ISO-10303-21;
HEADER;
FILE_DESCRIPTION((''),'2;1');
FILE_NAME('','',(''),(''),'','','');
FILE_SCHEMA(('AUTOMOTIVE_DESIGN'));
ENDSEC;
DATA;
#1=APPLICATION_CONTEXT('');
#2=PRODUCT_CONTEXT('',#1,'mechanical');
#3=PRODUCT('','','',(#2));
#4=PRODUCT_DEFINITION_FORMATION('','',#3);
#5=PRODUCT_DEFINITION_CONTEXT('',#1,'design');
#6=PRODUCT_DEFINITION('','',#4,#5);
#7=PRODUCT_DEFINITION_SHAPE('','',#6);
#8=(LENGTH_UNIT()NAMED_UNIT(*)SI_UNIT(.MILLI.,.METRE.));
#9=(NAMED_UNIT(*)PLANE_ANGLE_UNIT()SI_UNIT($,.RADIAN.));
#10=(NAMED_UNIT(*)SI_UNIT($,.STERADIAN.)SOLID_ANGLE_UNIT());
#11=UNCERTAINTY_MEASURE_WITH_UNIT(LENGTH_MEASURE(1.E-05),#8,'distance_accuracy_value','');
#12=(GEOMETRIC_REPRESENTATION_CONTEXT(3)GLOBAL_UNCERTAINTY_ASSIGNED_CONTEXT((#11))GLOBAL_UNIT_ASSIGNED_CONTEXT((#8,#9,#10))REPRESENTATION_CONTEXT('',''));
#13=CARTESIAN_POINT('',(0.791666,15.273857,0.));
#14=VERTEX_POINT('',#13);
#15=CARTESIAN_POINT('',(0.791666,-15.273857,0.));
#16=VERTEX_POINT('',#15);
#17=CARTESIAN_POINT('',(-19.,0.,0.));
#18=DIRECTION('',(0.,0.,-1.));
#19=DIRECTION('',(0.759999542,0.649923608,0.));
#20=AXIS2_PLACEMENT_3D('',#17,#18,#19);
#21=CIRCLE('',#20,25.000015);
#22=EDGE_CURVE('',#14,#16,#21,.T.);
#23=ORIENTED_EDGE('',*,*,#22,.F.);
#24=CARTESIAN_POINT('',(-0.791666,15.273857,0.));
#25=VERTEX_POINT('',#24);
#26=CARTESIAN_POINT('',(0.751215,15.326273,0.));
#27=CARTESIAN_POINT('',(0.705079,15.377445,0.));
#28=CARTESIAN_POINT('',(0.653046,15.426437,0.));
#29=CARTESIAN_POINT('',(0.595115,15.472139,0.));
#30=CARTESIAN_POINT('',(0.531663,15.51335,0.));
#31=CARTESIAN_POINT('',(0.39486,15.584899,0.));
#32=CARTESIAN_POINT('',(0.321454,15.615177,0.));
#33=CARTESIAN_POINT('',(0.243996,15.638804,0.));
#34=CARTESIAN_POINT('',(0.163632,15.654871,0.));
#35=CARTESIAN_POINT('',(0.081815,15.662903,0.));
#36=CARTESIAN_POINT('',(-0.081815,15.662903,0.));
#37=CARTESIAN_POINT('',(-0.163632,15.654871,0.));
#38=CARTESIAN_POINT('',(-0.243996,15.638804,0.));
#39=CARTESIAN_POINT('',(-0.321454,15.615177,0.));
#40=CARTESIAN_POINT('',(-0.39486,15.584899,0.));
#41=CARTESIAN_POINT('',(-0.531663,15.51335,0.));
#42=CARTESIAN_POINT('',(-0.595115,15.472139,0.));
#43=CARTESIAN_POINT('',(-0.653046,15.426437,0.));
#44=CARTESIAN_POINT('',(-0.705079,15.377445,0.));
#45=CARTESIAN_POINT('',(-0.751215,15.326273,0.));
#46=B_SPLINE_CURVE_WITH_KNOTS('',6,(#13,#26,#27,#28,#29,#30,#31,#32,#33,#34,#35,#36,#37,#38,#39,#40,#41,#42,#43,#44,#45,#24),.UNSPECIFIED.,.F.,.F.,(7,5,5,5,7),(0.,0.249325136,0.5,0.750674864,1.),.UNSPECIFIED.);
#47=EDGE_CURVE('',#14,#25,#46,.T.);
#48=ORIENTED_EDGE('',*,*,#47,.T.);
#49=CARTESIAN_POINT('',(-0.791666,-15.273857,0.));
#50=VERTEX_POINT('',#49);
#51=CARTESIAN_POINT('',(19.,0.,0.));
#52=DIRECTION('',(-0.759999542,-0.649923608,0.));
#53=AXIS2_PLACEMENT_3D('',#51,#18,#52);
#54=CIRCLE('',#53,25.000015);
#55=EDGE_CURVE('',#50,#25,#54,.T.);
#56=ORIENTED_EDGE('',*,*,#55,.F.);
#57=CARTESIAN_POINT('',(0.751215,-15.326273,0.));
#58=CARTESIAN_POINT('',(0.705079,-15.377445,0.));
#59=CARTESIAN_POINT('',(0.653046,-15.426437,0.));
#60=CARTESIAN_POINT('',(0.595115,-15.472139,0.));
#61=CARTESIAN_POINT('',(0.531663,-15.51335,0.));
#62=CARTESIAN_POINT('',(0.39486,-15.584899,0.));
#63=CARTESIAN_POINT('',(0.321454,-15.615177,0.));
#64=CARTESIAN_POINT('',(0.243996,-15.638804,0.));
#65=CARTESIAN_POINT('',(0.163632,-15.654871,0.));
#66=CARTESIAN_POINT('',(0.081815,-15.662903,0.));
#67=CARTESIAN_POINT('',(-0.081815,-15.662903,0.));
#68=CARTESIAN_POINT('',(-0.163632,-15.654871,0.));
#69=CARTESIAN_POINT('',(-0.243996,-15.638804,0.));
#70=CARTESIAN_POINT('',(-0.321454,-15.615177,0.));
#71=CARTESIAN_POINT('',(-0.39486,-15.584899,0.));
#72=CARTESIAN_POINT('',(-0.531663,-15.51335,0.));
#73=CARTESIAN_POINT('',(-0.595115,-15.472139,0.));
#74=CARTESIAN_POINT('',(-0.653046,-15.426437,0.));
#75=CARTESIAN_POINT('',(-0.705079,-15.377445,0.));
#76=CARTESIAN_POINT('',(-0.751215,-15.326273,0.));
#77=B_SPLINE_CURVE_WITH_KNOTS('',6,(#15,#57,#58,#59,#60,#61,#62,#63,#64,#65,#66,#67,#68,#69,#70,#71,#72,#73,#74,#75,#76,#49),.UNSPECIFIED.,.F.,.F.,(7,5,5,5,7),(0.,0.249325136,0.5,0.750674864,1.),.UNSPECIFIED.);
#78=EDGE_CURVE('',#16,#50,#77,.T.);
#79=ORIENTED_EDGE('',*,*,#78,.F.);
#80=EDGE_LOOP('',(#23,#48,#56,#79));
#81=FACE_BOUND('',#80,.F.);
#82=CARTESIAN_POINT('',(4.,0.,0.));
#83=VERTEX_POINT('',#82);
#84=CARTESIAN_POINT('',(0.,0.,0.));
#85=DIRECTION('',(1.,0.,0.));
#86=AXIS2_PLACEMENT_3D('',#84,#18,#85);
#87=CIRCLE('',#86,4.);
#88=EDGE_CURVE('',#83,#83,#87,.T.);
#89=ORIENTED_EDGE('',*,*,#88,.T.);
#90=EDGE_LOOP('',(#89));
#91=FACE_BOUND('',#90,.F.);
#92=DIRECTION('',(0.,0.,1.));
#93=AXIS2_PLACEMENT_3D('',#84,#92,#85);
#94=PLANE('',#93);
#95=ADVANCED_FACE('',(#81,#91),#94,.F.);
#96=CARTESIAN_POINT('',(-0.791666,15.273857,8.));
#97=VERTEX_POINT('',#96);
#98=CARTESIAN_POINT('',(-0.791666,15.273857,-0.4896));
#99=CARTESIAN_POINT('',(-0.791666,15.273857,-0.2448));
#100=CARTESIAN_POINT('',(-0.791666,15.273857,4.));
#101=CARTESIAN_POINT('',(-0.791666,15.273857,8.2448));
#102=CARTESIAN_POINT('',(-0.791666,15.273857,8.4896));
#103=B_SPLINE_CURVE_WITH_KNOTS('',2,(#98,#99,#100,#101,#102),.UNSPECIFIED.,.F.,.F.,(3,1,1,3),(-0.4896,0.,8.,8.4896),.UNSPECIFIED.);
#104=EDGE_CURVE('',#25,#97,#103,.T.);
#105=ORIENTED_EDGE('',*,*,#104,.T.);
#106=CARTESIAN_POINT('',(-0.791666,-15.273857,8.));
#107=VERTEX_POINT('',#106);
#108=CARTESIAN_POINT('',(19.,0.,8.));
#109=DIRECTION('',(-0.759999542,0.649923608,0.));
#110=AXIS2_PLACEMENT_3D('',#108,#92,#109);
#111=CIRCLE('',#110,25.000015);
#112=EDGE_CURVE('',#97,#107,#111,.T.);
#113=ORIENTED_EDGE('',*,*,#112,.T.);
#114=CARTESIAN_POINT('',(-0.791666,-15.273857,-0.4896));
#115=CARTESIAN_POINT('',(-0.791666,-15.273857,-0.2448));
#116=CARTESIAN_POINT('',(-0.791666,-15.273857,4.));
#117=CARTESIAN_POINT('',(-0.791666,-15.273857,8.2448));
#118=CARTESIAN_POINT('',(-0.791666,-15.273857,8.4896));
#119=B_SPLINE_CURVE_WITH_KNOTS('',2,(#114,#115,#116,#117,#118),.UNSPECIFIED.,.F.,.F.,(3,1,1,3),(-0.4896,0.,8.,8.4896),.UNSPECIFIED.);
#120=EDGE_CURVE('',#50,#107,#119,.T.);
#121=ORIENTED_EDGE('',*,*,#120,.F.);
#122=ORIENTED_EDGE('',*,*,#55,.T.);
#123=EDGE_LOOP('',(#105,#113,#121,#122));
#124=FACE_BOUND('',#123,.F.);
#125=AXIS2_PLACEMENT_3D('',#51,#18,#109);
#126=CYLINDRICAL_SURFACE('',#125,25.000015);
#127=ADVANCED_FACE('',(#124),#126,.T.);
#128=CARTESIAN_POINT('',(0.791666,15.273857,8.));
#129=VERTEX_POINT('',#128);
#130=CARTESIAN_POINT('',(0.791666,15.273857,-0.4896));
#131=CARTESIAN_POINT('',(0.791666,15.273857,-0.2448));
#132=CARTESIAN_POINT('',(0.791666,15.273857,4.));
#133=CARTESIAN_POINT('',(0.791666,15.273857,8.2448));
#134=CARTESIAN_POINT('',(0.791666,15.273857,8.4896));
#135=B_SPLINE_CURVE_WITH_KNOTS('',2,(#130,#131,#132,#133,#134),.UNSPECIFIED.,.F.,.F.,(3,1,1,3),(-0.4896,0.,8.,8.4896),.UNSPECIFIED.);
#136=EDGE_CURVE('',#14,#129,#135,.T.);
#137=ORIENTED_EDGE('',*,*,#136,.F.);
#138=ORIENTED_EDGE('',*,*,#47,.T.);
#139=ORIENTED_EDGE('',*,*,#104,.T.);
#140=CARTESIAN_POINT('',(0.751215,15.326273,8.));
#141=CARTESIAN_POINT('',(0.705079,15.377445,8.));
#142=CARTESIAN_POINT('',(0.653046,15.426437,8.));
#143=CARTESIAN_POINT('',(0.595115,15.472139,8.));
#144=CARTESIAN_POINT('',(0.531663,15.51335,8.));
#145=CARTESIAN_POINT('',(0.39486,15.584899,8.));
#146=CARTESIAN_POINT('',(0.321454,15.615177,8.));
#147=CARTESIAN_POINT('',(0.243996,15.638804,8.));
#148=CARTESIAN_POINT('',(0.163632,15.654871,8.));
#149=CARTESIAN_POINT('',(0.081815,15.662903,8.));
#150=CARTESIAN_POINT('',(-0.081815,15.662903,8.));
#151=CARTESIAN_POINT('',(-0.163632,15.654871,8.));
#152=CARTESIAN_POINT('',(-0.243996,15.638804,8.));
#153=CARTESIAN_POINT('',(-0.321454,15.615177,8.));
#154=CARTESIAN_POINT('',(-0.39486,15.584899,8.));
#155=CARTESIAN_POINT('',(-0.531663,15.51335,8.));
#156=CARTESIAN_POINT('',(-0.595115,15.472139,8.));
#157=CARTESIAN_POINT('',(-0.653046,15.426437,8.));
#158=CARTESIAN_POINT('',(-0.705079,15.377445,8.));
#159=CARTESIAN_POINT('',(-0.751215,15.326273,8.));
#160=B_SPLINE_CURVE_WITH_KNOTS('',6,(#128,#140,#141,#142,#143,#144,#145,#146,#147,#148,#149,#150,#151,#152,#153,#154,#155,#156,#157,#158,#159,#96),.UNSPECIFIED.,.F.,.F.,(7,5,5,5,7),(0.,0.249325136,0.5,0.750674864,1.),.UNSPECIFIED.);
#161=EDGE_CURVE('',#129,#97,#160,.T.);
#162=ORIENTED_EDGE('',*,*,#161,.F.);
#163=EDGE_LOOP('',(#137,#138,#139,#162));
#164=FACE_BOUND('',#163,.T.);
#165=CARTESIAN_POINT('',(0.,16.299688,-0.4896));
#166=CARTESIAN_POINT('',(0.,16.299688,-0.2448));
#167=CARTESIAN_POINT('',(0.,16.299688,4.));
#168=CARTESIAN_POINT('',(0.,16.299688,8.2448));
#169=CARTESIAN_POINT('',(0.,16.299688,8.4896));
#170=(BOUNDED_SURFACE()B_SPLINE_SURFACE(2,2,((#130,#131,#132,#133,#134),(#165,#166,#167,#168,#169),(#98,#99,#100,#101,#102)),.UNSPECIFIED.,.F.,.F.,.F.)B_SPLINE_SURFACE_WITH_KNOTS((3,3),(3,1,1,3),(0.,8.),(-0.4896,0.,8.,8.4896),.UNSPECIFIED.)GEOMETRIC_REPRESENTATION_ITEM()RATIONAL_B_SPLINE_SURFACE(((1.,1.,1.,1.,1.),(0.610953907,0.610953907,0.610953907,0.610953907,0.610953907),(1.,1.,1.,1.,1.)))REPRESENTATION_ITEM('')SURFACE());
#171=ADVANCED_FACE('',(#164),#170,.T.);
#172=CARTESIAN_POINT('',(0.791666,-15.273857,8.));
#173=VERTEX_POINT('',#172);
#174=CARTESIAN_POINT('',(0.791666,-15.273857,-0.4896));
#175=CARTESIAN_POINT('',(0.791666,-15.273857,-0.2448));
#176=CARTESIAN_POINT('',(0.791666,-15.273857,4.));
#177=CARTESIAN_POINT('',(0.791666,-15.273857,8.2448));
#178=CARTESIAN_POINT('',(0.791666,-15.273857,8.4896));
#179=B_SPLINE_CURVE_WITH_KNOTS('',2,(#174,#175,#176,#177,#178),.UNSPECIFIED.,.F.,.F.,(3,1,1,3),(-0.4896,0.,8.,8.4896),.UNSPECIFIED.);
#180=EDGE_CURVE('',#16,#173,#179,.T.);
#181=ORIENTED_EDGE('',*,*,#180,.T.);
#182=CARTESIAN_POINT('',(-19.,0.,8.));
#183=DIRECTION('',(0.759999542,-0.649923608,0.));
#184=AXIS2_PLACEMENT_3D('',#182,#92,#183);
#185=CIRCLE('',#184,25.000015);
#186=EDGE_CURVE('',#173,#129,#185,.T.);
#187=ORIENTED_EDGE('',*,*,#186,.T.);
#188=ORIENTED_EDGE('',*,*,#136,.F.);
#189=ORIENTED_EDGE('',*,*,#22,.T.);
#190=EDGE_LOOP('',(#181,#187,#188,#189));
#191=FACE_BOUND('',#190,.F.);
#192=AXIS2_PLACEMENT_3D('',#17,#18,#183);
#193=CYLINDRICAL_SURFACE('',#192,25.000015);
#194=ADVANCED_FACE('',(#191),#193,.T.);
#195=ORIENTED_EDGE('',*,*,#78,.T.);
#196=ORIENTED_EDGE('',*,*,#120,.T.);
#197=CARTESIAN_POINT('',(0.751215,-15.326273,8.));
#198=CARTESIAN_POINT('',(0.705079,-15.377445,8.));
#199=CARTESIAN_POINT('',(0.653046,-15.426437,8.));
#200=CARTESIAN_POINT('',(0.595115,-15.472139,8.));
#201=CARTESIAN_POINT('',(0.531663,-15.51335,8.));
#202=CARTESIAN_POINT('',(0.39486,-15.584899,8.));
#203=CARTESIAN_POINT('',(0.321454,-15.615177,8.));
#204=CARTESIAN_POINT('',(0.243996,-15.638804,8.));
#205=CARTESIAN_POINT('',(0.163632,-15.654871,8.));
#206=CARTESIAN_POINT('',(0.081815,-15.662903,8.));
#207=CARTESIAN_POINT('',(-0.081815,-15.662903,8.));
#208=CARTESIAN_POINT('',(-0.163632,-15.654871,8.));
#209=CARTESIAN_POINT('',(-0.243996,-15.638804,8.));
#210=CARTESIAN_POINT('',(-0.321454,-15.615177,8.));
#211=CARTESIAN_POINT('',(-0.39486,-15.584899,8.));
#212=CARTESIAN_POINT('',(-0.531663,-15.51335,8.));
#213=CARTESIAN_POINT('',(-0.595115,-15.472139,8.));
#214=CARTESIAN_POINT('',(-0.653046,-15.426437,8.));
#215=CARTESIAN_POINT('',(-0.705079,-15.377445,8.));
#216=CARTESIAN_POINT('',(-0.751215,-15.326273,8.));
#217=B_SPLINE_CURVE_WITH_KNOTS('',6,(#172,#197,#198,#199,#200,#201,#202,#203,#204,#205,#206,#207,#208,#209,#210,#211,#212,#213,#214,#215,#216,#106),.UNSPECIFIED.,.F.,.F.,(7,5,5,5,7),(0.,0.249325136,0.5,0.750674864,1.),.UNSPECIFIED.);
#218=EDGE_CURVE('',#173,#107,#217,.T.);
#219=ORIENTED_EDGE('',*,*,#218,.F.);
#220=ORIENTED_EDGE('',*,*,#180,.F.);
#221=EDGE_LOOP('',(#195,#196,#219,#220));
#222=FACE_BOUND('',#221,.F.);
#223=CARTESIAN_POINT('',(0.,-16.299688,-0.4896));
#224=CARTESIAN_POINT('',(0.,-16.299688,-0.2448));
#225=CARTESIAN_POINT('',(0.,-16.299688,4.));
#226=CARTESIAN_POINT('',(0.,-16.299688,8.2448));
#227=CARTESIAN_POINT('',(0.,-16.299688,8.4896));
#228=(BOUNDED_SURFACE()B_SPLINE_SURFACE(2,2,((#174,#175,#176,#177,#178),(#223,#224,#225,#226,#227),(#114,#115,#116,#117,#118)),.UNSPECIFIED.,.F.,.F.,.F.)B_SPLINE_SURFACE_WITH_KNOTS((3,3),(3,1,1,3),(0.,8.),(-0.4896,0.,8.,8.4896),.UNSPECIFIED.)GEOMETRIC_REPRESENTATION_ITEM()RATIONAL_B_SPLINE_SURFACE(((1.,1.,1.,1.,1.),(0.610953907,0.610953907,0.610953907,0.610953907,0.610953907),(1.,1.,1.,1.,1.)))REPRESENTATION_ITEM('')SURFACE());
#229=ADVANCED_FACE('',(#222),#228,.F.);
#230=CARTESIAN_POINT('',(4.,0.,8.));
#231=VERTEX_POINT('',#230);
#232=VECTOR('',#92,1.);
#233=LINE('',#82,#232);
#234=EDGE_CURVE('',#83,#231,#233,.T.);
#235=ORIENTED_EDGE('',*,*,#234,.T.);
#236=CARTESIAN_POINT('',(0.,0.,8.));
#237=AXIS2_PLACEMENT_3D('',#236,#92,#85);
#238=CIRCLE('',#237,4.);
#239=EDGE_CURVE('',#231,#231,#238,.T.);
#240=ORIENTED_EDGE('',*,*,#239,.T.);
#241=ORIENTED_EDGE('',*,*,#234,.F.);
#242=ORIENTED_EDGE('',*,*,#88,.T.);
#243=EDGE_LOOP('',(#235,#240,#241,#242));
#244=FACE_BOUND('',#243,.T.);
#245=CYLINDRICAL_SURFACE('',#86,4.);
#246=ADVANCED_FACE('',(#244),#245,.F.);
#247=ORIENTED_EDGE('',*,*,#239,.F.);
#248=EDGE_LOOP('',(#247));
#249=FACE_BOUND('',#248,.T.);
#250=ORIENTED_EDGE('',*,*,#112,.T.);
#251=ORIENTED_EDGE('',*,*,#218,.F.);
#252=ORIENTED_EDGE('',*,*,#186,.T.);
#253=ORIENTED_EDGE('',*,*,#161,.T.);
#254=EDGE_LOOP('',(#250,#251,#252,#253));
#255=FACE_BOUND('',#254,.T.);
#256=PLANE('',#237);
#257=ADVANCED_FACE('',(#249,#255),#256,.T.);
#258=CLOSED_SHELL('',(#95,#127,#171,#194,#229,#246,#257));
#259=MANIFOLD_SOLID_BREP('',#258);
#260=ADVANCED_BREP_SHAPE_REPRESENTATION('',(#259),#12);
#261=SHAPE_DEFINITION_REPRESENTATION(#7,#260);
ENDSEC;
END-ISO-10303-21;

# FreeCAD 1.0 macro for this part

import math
import FreeCAD as App
import Part
import Sketcher
from FreeCAD import Vector


def edges_at(feature, points):
    """Names of the edges that pass closest to the given points."""
    edges = feature.Shape.Edges
    near = lambda p: min(range(len(edges)), key=lambda i: edges[i].distToShape(Part.Vertex(*p))[0])
    return sorted({f"Edge{near(p) + 1}" for p in points})

doc = App.newDocument("Part")
params = doc.addObject("Spreadsheet::Sheet", "Params")
for row, (alias, value) in enumerate([
    ("sketch1_diameter", "8 mm"),
    ("sketch1_radius", "25 mm"),
    ("pad1_length", "8 mm"),
    ("fillet_radius", "1 mm"),
], start=1):
    params.set(f"A{row}", alias)
    params.set(f"B{row}", "=" + value)
    params.setAlias(f"B{row}", alias)

body = doc.addObject("PartDesign::Body", "Body")

# Sketch on XY plane
sketch1 = body.newObject("Sketcher::SketchObject", "Sketch")
sketch1.AttachmentSupport = (doc.getObject("XY_Plane"), [""])
sketch1.MapMode = "FlatFace"
sketch1.addGeometry([
    Part.ArcOfCircle(Part.Circle(Vector(-19, 0, 0), Vector(0, 0, 1), 25.000015), math.radians(-40.535843), math.radians(40.535843)),
    Part.ArcOfCircle(Part.Circle(Vector(19, 0, 0), Vector(0, 0, 1), 25.000015), math.radians(139.464157), math.radians(220.535843)),
    Part.Circle(Vector(0, 0, 0), Vector(0, 0, 1), 4),
], False)
sketch1.addConstraint([
    Sketcher.Constraint("Coincident", 0, 1, 1, 2),
    Sketcher.Constraint("Coincident", 1, 1, 0, 2),
    Sketcher.Constraint("Coincident", 2, 3, -1, 1),
    Sketcher.Constraint("Equal", 0, 1),
    Sketcher.Constraint("Symmetric", 0, 3, 1, 3, -1, 1),
    Sketcher.Constraint("PointOnObject", 0, 3, -1),
    Sketcher.Constraint("Diameter", 2, 8.0),
    Sketcher.Constraint("Radius", 0, 25.0),
    Sketcher.Constraint("DistanceX", 0, 3, -1, 1, 19.0),
])
sketch1.setExpression("Constraints[6]", "Params.sketch1_diameter")
sketch1.setExpression("Constraints[7]", "Params.sketch1_radius")
pad1 = body.newObject("PartDesign::Pad", "Pad")
pad1.Profile = sketch1
pad1.setExpression("Length", "Params.pad1_length")
doc.recompute()

fillet = body.newObject("PartDesign::Fillet", "Fillet")
fillet.Base = (pad1, edges_at(pad1, [(0, 16.248, 4), (0, -16.248, 4)]))
fillet.setExpression("Radius", "Params.fillet_radius")

doc.recompute()
